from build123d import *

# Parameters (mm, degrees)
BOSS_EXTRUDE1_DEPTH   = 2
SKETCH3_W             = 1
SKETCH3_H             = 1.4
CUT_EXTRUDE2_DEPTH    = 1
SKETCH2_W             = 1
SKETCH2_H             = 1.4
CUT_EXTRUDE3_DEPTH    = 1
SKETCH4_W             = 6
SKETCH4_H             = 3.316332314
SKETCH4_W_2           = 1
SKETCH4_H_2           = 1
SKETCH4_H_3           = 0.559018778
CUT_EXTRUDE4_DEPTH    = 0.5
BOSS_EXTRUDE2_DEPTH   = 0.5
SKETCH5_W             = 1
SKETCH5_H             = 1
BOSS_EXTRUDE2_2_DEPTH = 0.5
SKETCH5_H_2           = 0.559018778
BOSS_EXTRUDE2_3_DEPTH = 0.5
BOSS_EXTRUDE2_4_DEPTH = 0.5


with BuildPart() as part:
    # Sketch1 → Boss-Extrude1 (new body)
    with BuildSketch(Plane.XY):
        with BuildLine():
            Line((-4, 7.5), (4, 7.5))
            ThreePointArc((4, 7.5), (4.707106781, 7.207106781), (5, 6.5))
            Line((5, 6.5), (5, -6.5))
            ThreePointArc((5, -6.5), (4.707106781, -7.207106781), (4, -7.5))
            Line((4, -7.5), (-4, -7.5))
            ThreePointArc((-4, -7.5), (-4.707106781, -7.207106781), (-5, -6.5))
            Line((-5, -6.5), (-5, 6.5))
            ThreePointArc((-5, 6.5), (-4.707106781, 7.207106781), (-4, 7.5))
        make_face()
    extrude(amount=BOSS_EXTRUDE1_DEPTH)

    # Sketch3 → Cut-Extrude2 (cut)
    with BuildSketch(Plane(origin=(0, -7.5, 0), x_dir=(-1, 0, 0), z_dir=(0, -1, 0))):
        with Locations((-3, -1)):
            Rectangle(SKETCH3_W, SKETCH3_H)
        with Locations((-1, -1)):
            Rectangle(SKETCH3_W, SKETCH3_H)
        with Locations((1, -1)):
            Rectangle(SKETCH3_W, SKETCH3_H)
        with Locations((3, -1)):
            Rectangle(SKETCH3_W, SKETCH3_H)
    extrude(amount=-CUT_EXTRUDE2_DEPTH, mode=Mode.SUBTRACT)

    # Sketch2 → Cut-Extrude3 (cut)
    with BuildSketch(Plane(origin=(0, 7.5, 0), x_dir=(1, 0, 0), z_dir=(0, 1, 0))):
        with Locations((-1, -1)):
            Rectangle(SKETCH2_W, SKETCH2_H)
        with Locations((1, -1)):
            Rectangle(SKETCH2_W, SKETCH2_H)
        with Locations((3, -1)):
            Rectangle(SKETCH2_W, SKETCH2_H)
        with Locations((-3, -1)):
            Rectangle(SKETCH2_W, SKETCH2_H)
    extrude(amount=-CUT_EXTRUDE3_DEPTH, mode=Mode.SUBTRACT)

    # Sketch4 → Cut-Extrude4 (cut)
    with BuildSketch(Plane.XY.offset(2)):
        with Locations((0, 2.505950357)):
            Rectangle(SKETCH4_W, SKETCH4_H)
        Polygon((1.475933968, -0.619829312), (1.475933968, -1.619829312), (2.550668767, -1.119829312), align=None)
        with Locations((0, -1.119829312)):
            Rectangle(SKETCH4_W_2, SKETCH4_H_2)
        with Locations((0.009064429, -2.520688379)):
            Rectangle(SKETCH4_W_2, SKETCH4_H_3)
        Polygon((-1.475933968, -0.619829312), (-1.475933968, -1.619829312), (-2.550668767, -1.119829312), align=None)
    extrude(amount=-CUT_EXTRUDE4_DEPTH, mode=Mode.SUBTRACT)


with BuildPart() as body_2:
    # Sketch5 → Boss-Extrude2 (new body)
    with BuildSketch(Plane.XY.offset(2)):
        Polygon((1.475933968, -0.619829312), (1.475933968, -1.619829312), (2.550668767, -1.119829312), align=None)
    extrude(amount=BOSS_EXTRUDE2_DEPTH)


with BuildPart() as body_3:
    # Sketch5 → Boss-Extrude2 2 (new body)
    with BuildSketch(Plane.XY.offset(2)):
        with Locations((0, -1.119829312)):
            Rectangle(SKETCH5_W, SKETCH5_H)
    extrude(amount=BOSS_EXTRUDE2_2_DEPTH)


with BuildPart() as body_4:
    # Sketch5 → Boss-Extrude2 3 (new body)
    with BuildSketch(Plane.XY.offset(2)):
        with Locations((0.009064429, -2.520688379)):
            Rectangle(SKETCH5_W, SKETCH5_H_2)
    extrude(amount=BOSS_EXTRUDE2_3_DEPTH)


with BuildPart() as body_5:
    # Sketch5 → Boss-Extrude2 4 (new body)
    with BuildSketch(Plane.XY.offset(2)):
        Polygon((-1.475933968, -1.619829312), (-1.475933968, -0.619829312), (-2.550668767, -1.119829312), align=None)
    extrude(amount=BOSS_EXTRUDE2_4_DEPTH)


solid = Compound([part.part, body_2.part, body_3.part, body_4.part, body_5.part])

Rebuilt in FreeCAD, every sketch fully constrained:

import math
import FreeCAD as App
import Part
import Sketcher
from FreeCAD import Vector


def add_polygon(sketch, points):
    """Adds a closed chain of lines whose ends are joined by coincident constraints."""
    first, n = sketch.GeometryCount, len(points)
    for a, b in zip(points, points[1:] + points[:1]):
        sketch.addGeometry(Part.LineSegment(App.Vector(*a, 0), App.Vector(*b, 0)), False)
    for i in range(n):
        sketch.addConstraint(Sketcher.Constraint("Coincident", first + i, 2, first + (i + 1) % n, 1))

doc = App.newDocument("Part")
body = doc.addObject("PartDesign::Body", "Body")

# Sketch on XY plane
sketch1 = body.newObject("Sketcher::SketchObject", "Sketch")
sketch1.AttachmentSupport = (doc.getObject("XY_Plane"), [""])
sketch1.MapMode = "FlatFace"
sketch1.addGeometry(Part.LineSegment(Vector(4, 7.5, 0), Vector(-4, 7.5, 0)), False)
sketch1.addGeometry(Part.ArcOfCircle(Part.Circle(Vector(-4, 6.5, 0), Vector(0, 0, 1), 1), math.radians(90), math.radians(180)), False)
sketch1.addGeometry(Part.LineSegment(Vector(-5, 6.5, 0), Vector(-5, -6.5, 0)), False)
sketch1.addGeometry(Part.ArcOfCircle(Part.Circle(Vector(-4, -6.5, 0), Vector(0, 0, 1), 1), math.radians(-180), math.radians(-90)), False)
sketch1.addGeometry(Part.LineSegment(Vector(-4, -7.5, 0), Vector(4, -7.5, 0)), False)
sketch1.addGeometry(Part.ArcOfCircle(Part.Circle(Vector(4, -6.5, 0), Vector(0, 0, 1), 1), math.radians(-90), math.radians(0)), False)
sketch1.addGeometry(Part.LineSegment(Vector(5, -6.5, 0), Vector(5, 6.5, 0)), False)
sketch1.addGeometry(Part.ArcOfCircle(Part.Circle(Vector(4, 6.5, 0), Vector(0, 0, 1), 1), math.radians(0), math.radians(90)), False)
sketch1.addConstraint(Sketcher.Constraint("Tangent", 0, 2, 1, 1))
sketch1.addConstraint(Sketcher.Constraint("Tangent", 1, 2, 2, 1))
sketch1.addConstraint(Sketcher.Constraint("Tangent", 2, 2, 3, 1))
sketch1.addConstraint(Sketcher.Constraint("Tangent", 3, 2, 4, 1))
sketch1.addConstraint(Sketcher.Constraint("Tangent", 4, 2, 5, 1))
sketch1.addConstraint(Sketcher.Constraint("Tangent", 5, 2, 6, 1))
sketch1.addConstraint(Sketcher.Constraint("Tangent", 6, 2, 7, 1))
sketch1.addConstraint(Sketcher.Constraint("Tangent", 7, 2, 0, 1))
sketch1.addConstraint(Sketcher.Constraint("Horizontal", 0))
sketch1.addConstraint(Sketcher.Constraint("Vertical", 2))
sketch1.addConstraint(Sketcher.Constraint("Horizontal", 4))
sketch1.addConstraint(Sketcher.Constraint("Vertical", 6))
sketch1.addConstraint(Sketcher.Constraint("Equal", 1, 3))
sketch1.addConstraint(Sketcher.Constraint("Equal", 3, 5))
sketch1.addConstraint(Sketcher.Constraint("Equal", 5, 7))
sketch1.addConstraint(Sketcher.Constraint("Symmetric", 1, 3, 5, 3, -1, 1))
sketch1.addConstraint(Sketcher.Constraint("Radius", 1, 1.0))
sketch1.addConstraint(Sketcher.Constraint("DistanceX", 0, 2, 0, 1, 8.0))
sketch1.addConstraint(Sketcher.Constraint("DistanceY", 2, 2, 2, 1, 13.0))
pad1 = body.newObject("PartDesign::Pad", "Pad")
pad1.Profile = sketch1
pad1.Length = 2

# Sketch on XZ plane
sketch2 = body.newObject("Sketcher::SketchObject", "Sketch001")
sketch2.AttachmentSupport = (doc.getObject("XZ_Plane"), [""])
sketch2.MapMode = "FlatFace"
sketch2.AttachmentOffset = App.Placement(Vector(0, 0, 7.5), App.Rotation())
add_polygon(sketch2, [(3.5, 0.3), (3.5, 1.7), (2.5, 1.7), (2.5, 0.3)])  # lines 0-3
add_polygon(sketch2, [(1.5, 0.3), (1.5, 1.7), (0.5, 1.7), (0.5, 0.3)])  # lines 4-7
add_polygon(sketch2, [(-0.5, 0.3), (-0.5, 1.7), (-1.5, 1.7), (-1.5, 0.3)])  # lines 8-11
add_polygon(sketch2, [(-2.5, 0.3), (-2.5, 1.7), (-3.5, 1.7), (-3.5, 0.3)])  # lines 12-15
sketch2.addConstraint(Sketcher.Constraint("Vertical", 0))
sketch2.addConstraint(Sketcher.Constraint("Horizontal", 1))
sketch2.addConstraint(Sketcher.Constraint("Vertical", 2))
sketch2.addConstraint(Sketcher.Constraint("Horizontal", 3))
sketch2.addConstraint(Sketcher.Constraint("Vertical", 4))
sketch2.addConstraint(Sketcher.Constraint("Horizontal", 5))
sketch2.addConstraint(Sketcher.Constraint("Vertical", 6))
sketch2.addConstraint(Sketcher.Constraint("Horizontal", 7))
sketch2.addConstraint(Sketcher.Constraint("Vertical", 8))
sketch2.addConstraint(Sketcher.Constraint("Horizontal", 9))
sketch2.addConstraint(Sketcher.Constraint("Vertical", 10))
sketch2.addConstraint(Sketcher.Constraint("Horizontal", 11))
sketch2.addConstraint(Sketcher.Constraint("Vertical", 12))
sketch2.addConstraint(Sketcher.Constraint("Horizontal", 13))
sketch2.addConstraint(Sketcher.Constraint("Vertical", 14))
sketch2.addConstraint(Sketcher.Constraint("Horizontal", 15))
sketch2.addConstraint(Sketcher.Constraint("Symmetric", 5, 2, 8, 2, -2))
sketch2.addConstraint(Sketcher.Constraint("Symmetric", 7, 2, 10, 2, -2))
sketch2.addConstraint(Sketcher.Constraint("Symmetric", 1, 2, 12, 2, -2))
sketch2.addConstraint(Sketcher.Constraint("Symmetric", 3, 2, 14, 2, -2))
sketch2.addConstraint(Sketcher.Constraint("Horizontal", 1, 2, 4, 2))
sketch2.addConstraint(Sketcher.Constraint("Horizontal", 3, 2, 6, 2))
sketch2.addConstraint(Sketcher.Constraint("Equal", 3, 5))
sketch2.addConstraint(Sketcher.Constraint("DistanceX", 1, 2, 1, 1, 1.0))
sketch2.addConstraint(Sketcher.Constraint("DistanceY", 0, 1, 0, 2, 1.4))
sketch2.addConstraint(Sketcher.Constraint("DistanceX", 4, 2, 1, 2, 1.0))
sketch2.addConstraint(Sketcher.Constraint("DistanceX", 8, 2, 5, 2, 1.0))
sketch2.addConstraint(Sketcher.Constraint("DistanceY", -1, 1, 0, 2, 1.7))
pocket1 = body.newObject("PartDesign::Pocket", "Pocket")
pocket1.Profile = sketch2
pocket1.Length = 1

# Sketch on XZ plane
sketch3 = body.newObject("Sketcher::SketchObject", "Sketch002")
sketch3.AttachmentSupport = (doc.getObject("XZ_Plane"), [""])
sketch3.MapMode = "FlatFace"
sketch3.AttachmentOffset = App.Placement(Vector(0, 0, -7.5), App.Rotation())
add_polygon(sketch3, [(-1.5, 0.3), (-1.5, 1.7), (-0.5, 1.7), (-0.5, 0.3)])  # lines 0-3
add_polygon(sketch3, [(0.5, 0.3), (0.5, 1.7), (1.5, 1.7), (1.5, 0.3)])  # lines 4-7
add_polygon(sketch3, [(2.5, 0.3), (2.5, 1.7), (3.5, 1.7), (3.5, 0.3)])  # lines 8-11
add_polygon(sketch3, [(-3.5, 0.3), (-3.5, 1.7), (-2.5, 1.7), (-2.5, 0.3)])  # lines 12-15
sketch3.addConstraint(Sketcher.Constraint("Vertical", 0))
sketch3.addConstraint(Sketcher.Constraint("Horizontal", 1))
sketch3.addConstraint(Sketcher.Constraint("Vertical", 2))
sketch3.addConstraint(Sketcher.Constraint("Horizontal", 3))
sketch3.addConstraint(Sketcher.Constraint("Vertical", 4))
sketch3.addConstraint(Sketcher.Constraint("Horizontal", 5))
sketch3.addConstraint(Sketcher.Constraint("Vertical", 6))
sketch3.addConstraint(Sketcher.Constraint("Horizontal", 7))
sketch3.addConstraint(Sketcher.Constraint("Vertical", 8))
sketch3.addConstraint(Sketcher.Constraint("Horizontal", 9))
sketch3.addConstraint(Sketcher.Constraint("Vertical", 10))
sketch3.addConstraint(Sketcher.Constraint("Horizontal", 11))
sketch3.addConstraint(Sketcher.Constraint("Vertical", 12))
sketch3.addConstraint(Sketcher.Constraint("Horizontal", 13))
sketch3.addConstraint(Sketcher.Constraint("Vertical", 14))
sketch3.addConstraint(Sketcher.Constraint("Horizontal", 15))
sketch3.addConstraint(Sketcher.Constraint("Symmetric", 1, 2, 4, 2, -2))
sketch3.addConstraint(Sketcher.Constraint("Symmetric", 3, 2, 6, 2, -2))
sketch3.addConstraint(Sketcher.Constraint("Symmetric", 9, 2, 12, 2, -2))
sketch3.addConstraint(Sketcher.Constraint("Symmetric", 11, 2, 14, 2, -2))
sketch3.addConstraint(Sketcher.Constraint("Horizontal", 5, 2, 8, 2))
sketch3.addConstraint(Sketcher.Constraint("Horizontal", 7, 2, 10, 2))
sketch3.addConstraint(Sketcher.Constraint("Equal", 7, 9))
sketch3.addConstraint(Sketcher.Constraint("DistanceX", 1, 1, 1, 2, 1.0))
sketch3.addConstraint(Sketcher.Constraint("DistanceY", 0, 1, 0, 2, 1.4))
sketch3.addConstraint(Sketcher.Constraint("DistanceX", 1, 2, 4, 2, 1.0))
sketch3.addConstraint(Sketcher.Constraint("DistanceX", 5, 2, 8, 2, 1.0))
sketch3.addConstraint(Sketcher.Constraint("DistanceY", -1, 1, 0, 2, 1.7))
pocket2 = body.newObject("PartDesign::Pocket", "Pocket001")
pocket2.Profile = sketch3
pocket2.Length = 1
pocket2.Reversed = True

# Sketch on XY plane
sketch4 = body.newObject("Sketcher::SketchObject", "Sketch003")
sketch4.AttachmentSupport = (doc.getObject("XY_Plane"), [""])
sketch4.MapMode = "FlatFace"
sketch4.AttachmentOffset = App.Placement(Vector(0, 0, 2), App.Rotation())
add_polygon(sketch4, [(-3, 4.2), (-3, 0.8), (3, 0.8), (3, 4.2)])  # lines 0-3
add_polygon(sketch4, [(1.5, -0.6), (1.5, -1.6), (2.6, -1.1)])  # lines 4-6
add_polygon(sketch4, [(-0.5, -0.6), (-0.5, -1.6), (0.5, -1.6), (0.5, -0.6)])  # lines 7-10
add_polygon(sketch4, [(-0.5, -2.2), (-0.5, -2.8), (0.5, -2.8), (0.5, -2.2)])  # lines 11-14
add_polygon(sketch4, [(-1.5, -1.6), (-1.5, -0.6), (-2.6, -1.1)])  # lines 15-17
sketch4.addConstraint(Sketcher.Constraint("Vertical", 0))
sketch4.addConstraint(Sketcher.Constraint("Horizontal", 1))
sketch4.addConstraint(Sketcher.Constraint("Vertical", 2))
sketch4.addConstraint(Sketcher.Constraint("Horizontal", 3))
sketch4.addConstraint(Sketcher.Constraint("Vertical", 4))
sketch4.addConstraint(Sketcher.Constraint("Vertical", 7))
sketch4.addConstraint(Sketcher.Constraint("Horizontal", 8))
sketch4.addConstraint(Sketcher.Constraint("Vertical", 9))
sketch4.addConstraint(Sketcher.Constraint("Horizontal", 10))
sketch4.addConstraint(Sketcher.Constraint("Vertical", 11))
sketch4.addConstraint(Sketcher.Constraint("Horizontal", 12))
sketch4.addConstraint(Sketcher.Constraint("Vertical", 13))
sketch4.addConstraint(Sketcher.Constraint("Horizontal", 14))
sketch4.addConstraint(Sketcher.Constraint("Vertical", 15))
sketch4.addConstraint(Sketcher.Constraint("Symmetric", 6, 2, 15, 2, -2))
sketch4.addConstraint(Sketcher.Constraint("Symmetric", 5, 2, 16, 2, -2))
sketch4.addConstraint(Sketcher.Constraint("Parallel", 5, 16))
sketch4.addConstraint(Sketcher.Constraint("Parallel", 6, 17))
sketch4.addConstraint(Sketcher.Constraint("Horizontal", 4, 2, 7, 2))
sketch4.addConstraint(Sketcher.Constraint("Horizontal", 6, 2, 9, 2))
sketch4.addConstraint(Sketcher.Constraint("Equal", 10, 12))
sketch4.addConstraint(Sketcher.Constraint("Equal", 14, 4))
sketch4.addConstraint(Sketcher.Constraint("DistanceX", 1, 1, 1, 2, 6.0))
sketch4.addConstraint(Sketcher.Constraint("DistanceX", 8, 1, 8, 2, 1.0))
sketch4.addConstraint(Sketcher.Constraint("DistanceX", 0, 2, -1, 1, 3.0))
sketch4.addConstraint(Sketcher.Constraint("DistanceX", 7, 2, -1, 1, 0.5))
sketch4.addConstraint(Sketcher.Constraint("DistanceX", 15, 2, 14, 2, 0.984998))
sketch4.addConstraint(Sketcher.Constraint("DistanceY", 11, 2, 11, 1, 0.559019))
sketch4.addConstraint(Sketcher.Constraint("Distance", 5, 1.18535))
sketch4.addConstraint(Sketcher.Constraint("DistanceY", 0, 2, 0, 1, 3.316332))
sketch4.addConstraint(Sketcher.Constraint("DistanceY", 4, 2, -1, 1, 1.619829))
sketch4.addConstraint(Sketcher.Constraint("DistanceX", -1, 1, 5, 2, 2.550669))
sketch4.addConstraint(Sketcher.Constraint("DistanceY", 13, 2, -1, 1, 2.241179))
sketch4.addConstraint(Sketcher.Constraint("DistanceY", -1, 1, 0, 2, 0.847784))
pocket3 = body.newObject("PartDesign::Pocket", "Pocket002")
pocket3.Profile = sketch4
pocket3.Length = 0.5
body2 = doc.addObject("PartDesign::Body", "Body001")

# Sketch on XY plane
sketch5 = body2.newObject("Sketcher::SketchObject", "Sketch004")
sketch5.AttachmentSupport = (doc.getObject("XY_Plane001"), [""])
sketch5.MapMode = "FlatFace"
sketch5.AttachmentOffset = App.Placement(Vector(0, 0, 2), App.Rotation())
add_polygon(sketch5, [(1.5, -0.6), (1.5, -1.6), (2.6, -1.1)])  # lines 0-2
sketch5.addConstraint(Sketcher.Constraint("Vertical", 0))
sketch5.addConstraint(Sketcher.Constraint("Equal", 1, 2))
sketch5.addConstraint(Sketcher.Constraint("DistanceY", 0, 2, 0, 1, 1.0))
sketch5.addConstraint(Sketcher.Constraint("Distance", 1, 1.18535))
sketch5.addConstraint(Sketcher.Constraint("DistanceY", 0, 2, -1, 1, 1.619829))
sketch5.addConstraint(Sketcher.Constraint("DistanceX", -1, 1, 1, 2, 2.550669))
pad2 = body2.newObject("PartDesign::Pad", "Pad001")
pad2.Profile = sketch5
pad2.Length = 0.5
body3 = doc.addObject("PartDesign::Body", "Body002")

# Sketch on XY plane
sketch6 = body3.newObject("Sketcher::SketchObject", "Sketch005")
sketch6.AttachmentSupport = (doc.getObject("XY_Plane002"), [""])
sketch6.MapMode = "FlatFace"
sketch6.AttachmentOffset = App.Placement(Vector(0, 0, 2), App.Rotation())
add_polygon(sketch6, [(-0.5, -0.6), (-0.5, -1.6), (0.5, -1.6), (0.5, -0.6)])  # lines 0-3
sketch6.addConstraint(Sketcher.Constraint("Vertical", 0))
sketch6.addConstraint(Sketcher.Constraint("Horizontal", 1))
sketch6.addConstraint(Sketcher.Constraint("Vertical", 2))
sketch6.addConstraint(Sketcher.Constraint("Horizontal", 3))
sketch6.addConstraint(Sketcher.Constraint("Equal", 3, 0))
sketch6.addConstraint(Sketcher.Constraint("DistanceX", 1, 1, 1, 2, 1.0))
sketch6.addConstraint(Sketcher.Constraint("DistanceX", 0, 2, -1, 1, 0.5))
sketch6.addConstraint(Sketcher.Constraint("DistanceY", 0, 2, -1, 1, 1.619829))
pad3 = body3.newObject("PartDesign::Pad", "Pad002")
pad3.Profile = sketch6
pad3.Length = 0.5
body4 = doc.addObject("PartDesign::Body", "Body003")

# Sketch on XY plane
sketch7 = body4.newObject("Sketcher::SketchObject", "Sketch006")
sketch7.AttachmentSupport = (doc.getObject("XY_Plane003"), [""])
sketch7.MapMode = "FlatFace"
sketch7.AttachmentOffset = App.Placement(Vector(0, 0, 2), App.Rotation())
add_polygon(sketch7, [(-0.5, -2.2), (-0.5, -2.8), (0.5, -2.8), (0.5, -2.2)])  # lines 0-3
sketch7.addConstraint(Sketcher.Constraint("Vertical", 0))
sketch7.addConstraint(Sketcher.Constraint("Horizontal", 1))
sketch7.addConstraint(Sketcher.Constraint("Vertical", 2))
sketch7.addConstraint(Sketcher.Constraint("Horizontal", 3))
sketch7.addConstraint(Sketcher.Constraint("DistanceX", 1, 1, 1, 2, 1.0))
sketch7.addConstraint(Sketcher.Constraint("DistanceY", 0, 2, 0, 1, 0.559019))
sketch7.addConstraint(Sketcher.Constraint("DistanceY", 2, 2, -1, 1, 2.241179))
sketch7.addConstraint(Sketcher.Constraint("DistanceX", 0, 2, -1, 1, 0.490936))
pad4 = body4.newObject("PartDesign::Pad", "Pad003")
pad4.Profile = sketch7
pad4.Length = 0.5
body5 = doc.addObject("PartDesign::Body", "Body004")

# Sketch on XY plane
sketch8 = body5.newObject("Sketcher::SketchObject", "Sketch007")
sketch8.AttachmentSupport = (doc.getObject("XY_Plane004"), [""])
sketch8.MapMode = "FlatFace"
sketch8.AttachmentOffset = App.Placement(Vector(0, 0, 2), App.Rotation())
add_polygon(sketch8, [(-1.5, -1.6), (-1.5, -0.6), (-2.6, -1.1)])  # lines 0-2
sketch8.addConstraint(Sketcher.Constraint("Vertical", 0))
sketch8.addConstraint(Sketcher.Constraint("Equal", 1, 2))
sketch8.addConstraint(Sketcher.Constraint("DistanceY", 0, 1, 0, 2, 1.0))
sketch8.addConstraint(Sketcher.Constraint("Distance", 1, 1.18535))
sketch8.addConstraint(Sketcher.Constraint("DistanceY", 0, 2, -1, 1, 0.619829))
sketch8.addConstraint(Sketcher.Constraint("DistanceX", 1, 2, -1, 1, 2.550669))
pad5 = body5.newObject("PartDesign::Pad", "Pad004")
pad5.Profile = sketch8
pad5.Length = 0.5

doc.recompute()
